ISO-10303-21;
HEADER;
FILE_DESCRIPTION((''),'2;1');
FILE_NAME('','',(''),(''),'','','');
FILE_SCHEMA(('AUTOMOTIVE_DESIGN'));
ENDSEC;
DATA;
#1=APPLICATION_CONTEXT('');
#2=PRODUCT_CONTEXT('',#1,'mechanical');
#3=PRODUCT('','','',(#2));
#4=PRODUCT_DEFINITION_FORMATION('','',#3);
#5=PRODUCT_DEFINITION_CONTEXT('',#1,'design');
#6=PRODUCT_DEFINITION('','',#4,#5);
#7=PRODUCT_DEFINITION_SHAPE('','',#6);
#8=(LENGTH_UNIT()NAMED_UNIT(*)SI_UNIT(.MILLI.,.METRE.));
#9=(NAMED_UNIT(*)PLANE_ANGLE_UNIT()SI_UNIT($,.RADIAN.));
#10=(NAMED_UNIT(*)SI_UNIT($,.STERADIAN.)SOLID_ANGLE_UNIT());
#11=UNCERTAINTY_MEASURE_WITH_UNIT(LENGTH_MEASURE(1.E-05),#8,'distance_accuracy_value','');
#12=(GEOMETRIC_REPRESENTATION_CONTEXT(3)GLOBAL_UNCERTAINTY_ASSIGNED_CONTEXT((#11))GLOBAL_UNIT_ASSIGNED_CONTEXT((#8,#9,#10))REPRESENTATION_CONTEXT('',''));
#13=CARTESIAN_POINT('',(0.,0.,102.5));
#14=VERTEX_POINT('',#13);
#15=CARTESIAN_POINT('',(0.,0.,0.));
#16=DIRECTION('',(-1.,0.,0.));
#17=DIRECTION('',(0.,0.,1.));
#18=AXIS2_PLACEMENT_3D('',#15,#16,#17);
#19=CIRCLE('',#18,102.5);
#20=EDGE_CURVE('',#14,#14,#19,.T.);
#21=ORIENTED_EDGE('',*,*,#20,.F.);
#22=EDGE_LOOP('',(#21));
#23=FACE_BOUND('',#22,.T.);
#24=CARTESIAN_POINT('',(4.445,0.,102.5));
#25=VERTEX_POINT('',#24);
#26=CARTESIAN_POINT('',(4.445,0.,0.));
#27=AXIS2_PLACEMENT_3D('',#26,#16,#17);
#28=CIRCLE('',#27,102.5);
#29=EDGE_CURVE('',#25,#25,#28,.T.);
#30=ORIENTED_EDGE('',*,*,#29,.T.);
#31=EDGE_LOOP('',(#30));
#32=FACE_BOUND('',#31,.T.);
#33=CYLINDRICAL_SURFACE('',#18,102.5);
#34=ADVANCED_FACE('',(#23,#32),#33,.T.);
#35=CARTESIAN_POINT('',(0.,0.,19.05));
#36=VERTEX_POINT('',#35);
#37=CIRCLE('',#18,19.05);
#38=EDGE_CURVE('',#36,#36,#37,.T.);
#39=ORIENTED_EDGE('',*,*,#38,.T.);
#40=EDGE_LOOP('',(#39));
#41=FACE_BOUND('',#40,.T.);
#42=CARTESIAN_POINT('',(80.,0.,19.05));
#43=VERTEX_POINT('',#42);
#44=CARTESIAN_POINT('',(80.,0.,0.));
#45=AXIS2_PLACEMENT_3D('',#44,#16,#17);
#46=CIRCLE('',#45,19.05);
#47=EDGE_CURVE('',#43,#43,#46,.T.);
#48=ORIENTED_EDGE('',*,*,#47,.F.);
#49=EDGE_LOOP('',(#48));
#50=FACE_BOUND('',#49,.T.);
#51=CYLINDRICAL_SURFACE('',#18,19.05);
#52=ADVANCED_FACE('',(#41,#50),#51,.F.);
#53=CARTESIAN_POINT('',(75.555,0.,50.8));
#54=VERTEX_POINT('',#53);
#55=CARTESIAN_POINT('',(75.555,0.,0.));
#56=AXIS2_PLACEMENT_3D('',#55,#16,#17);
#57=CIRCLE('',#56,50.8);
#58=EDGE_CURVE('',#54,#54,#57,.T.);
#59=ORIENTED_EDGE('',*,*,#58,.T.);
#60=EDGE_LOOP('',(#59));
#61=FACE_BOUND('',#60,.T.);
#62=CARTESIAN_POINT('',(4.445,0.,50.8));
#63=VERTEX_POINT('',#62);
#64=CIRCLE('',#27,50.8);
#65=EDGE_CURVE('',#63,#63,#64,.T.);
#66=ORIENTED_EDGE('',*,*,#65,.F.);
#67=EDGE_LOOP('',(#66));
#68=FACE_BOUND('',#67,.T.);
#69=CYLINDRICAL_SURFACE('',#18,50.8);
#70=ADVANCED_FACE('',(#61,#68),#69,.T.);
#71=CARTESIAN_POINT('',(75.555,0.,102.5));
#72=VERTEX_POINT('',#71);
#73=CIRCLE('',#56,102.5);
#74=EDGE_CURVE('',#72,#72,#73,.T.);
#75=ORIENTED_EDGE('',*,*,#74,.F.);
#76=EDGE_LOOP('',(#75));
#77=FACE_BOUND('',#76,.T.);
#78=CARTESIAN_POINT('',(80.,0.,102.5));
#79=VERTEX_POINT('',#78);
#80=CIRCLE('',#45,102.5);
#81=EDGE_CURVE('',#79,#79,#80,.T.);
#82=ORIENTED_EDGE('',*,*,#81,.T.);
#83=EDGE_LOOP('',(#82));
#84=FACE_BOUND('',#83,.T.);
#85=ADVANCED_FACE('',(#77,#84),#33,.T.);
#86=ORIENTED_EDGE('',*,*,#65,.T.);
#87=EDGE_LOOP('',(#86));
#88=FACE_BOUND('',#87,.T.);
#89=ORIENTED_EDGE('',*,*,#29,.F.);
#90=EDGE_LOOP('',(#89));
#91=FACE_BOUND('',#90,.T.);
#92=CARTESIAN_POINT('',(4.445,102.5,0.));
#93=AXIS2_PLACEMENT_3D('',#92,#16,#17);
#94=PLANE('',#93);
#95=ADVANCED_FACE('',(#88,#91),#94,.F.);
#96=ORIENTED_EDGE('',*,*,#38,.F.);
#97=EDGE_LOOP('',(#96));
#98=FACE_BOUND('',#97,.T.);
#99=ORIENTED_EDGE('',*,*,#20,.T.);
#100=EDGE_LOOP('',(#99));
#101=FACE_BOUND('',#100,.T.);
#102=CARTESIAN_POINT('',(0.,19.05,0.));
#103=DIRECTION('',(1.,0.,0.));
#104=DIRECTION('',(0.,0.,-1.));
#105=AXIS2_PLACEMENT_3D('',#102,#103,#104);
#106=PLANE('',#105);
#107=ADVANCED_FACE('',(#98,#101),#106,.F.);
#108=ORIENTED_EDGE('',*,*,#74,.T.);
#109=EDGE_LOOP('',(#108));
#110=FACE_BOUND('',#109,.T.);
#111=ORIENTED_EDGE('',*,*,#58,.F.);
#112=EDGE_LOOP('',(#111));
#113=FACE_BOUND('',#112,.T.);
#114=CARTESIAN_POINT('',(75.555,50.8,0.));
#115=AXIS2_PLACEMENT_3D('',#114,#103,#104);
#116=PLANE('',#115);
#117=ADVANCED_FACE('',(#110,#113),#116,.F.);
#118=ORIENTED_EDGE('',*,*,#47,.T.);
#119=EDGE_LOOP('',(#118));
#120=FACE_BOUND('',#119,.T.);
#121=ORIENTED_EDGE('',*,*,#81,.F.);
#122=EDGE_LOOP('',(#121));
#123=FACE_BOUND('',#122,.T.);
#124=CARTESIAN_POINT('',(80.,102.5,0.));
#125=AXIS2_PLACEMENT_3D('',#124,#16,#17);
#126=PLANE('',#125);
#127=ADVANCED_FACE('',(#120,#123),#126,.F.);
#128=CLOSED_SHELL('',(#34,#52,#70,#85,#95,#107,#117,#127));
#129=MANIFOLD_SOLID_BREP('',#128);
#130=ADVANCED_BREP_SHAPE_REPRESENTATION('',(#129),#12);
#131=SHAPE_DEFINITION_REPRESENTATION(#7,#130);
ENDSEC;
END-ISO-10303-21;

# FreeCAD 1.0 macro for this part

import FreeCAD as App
import Part
import Sketcher
from FreeCAD import Vector
Q = App.Units.Quantity

doc = App.newDocument("Part")
body = doc.addObject("PartDesign::Body", "Body")

# Sketch on XY plane
sketch1 = body.newObject("Sketcher::SketchObject", "Sketch")
sketch1.AttachmentSupport = (doc.getObject("XY_Plane"), [""])
sketch1.MapMode = "FlatFace"
sketch1.addGeometry([
    Part.LineSegment(Vector(0, 19.1, 0), Vector(80, 19.1, 0)),  # 0
    Part.LineSegment(Vector(80, 19.1, 0), Vector(80, 102.5, 0)),  # 1
    Part.LineSegment(Vector(80, 102.5, 0), Vector(75.6, 102.5, 0)),  # 2
    Part.LineSegment(Vector(75.6, 102.5, 0), Vector(75.6, 50.8, 0)),  # 3
    Part.LineSegment(Vector(75.6, 50.8, 0), Vector(4.4, 50.8, 0)),  # 4
    Part.LineSegment(Vector(4.4, 50.8, 0), Vector(4.4, 102.5, 0)),  # 5
    Part.LineSegment(Vector(4.4, 102.5, 0), Vector(0, 102.5, 0)),  # 6
    Part.LineSegment(Vector(0, 102.5, 0), Vector(0, 19.1, 0)),  # 7
], False)
sketch1.addConstraint([
    Sketcher.Constraint("Coincident", 0, 2, 1, 1),
    Sketcher.Constraint("Coincident", 1, 2, 2, 1),
    Sketcher.Constraint("Coincident", 2, 2, 3, 1),
    Sketcher.Constraint("Coincident", 3, 2, 4, 1),
    Sketcher.Constraint("Coincident", 4, 2, 5, 1),
    Sketcher.Constraint("Coincident", 5, 2, 6, 1),
    Sketcher.Constraint("Coincident", 6, 2, 7, 1),
    Sketcher.Constraint("Coincident", 7, 2, 0, 1),
    Sketcher.Constraint("Horizontal", 0),
    Sketcher.Constraint("Vertical", 1),
    Sketcher.Constraint("Horizontal", 2),
    Sketcher.Constraint("Vertical", 3),
    Sketcher.Constraint("Horizontal", 4),
    Sketcher.Constraint("Vertical", 5),
    Sketcher.Constraint("Horizontal", 6),
    Sketcher.Constraint("Vertical", 7),
    Sketcher.Constraint("PointOnObject", 6, 2, -2),
    Sketcher.Constraint("Horizontal", 2, 2, 5, 2),
    Sketcher.Constraint("Equal", 2, 6),
    Sketcher.Constraint("DistanceX", 0, 1, 0, 2, Q("80 mm")),
    Sketcher.Constraint("DistanceY", 3, 2, 3, 1, Q("51.7 mm")),
    Sketcher.Constraint("DistanceX", 4, 2, 4, 1, Q("71.11 mm")),
    Sketcher.Constraint("DistanceY", 1, 1, 1, 2, Q("83.45 mm")),
    Sketcher.Constraint("DistanceY", -1, 1, 1, 2, Q("102.5 mm")),
])
revolution = body.newObject("PartDesign::Revolution", "Revolution")
revolution.Profile = sketch1
revolution.ReferenceAxis = (sketch1, ["H_Axis"])
revolution.Angle = 360

doc.recompute()
